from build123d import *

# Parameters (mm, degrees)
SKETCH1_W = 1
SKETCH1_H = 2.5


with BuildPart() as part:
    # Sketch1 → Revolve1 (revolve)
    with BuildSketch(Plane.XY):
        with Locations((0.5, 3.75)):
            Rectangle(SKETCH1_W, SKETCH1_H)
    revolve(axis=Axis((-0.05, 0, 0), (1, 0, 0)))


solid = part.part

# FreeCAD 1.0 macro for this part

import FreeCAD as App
import Part
import Sketcher
from FreeCAD import Vector
Q = App.Units.Quantity

doc = App.newDocument("Part")
body = doc.addObject("PartDesign::Body", "Body")

# Sketch on XY plane
sketch1 = body.newObject("Sketcher::SketchObject", "Sketch")
sketch1.AttachmentSupport = (doc.getObject("XY_Plane"), [""])
sketch1.MapMode = "FlatFace"
sketch1.addGeometry(Part.LineSegment(Vector(0, 5, 0), Vector(0, 2.5, 0)), False)
sketch1.addGeometry(Part.LineSegment(Vector(0, 2.5, 0), Vector(1, 2.5, 0)), False)
sketch1.addGeometry(Part.LineSegment(Vector(1, 2.5, 0), Vector(1, 5, 0)), False)
sketch1.addGeometry(Part.LineSegment(Vector(1, 5, 0), Vector(0, 5, 0)), False)
sketch1.addConstraint(Sketcher.Constraint("Coincident", 0, 2, 1, 1))
sketch1.addConstraint(Sketcher.Constraint("Coincident", 1, 2, 2, 1))
sketch1.addConstraint(Sketcher.Constraint("Coincident", 2, 2, 3, 1))
sketch1.addConstraint(Sketcher.Constraint("Coincident", 3, 2, 0, 1))
sketch1.addConstraint(Sketcher.Constraint("Vertical", 0))
sketch1.addConstraint(Sketcher.Constraint("Horizontal", 1))
sketch1.addConstraint(Sketcher.Constraint("Vertical", 2))
sketch1.addConstraint(Sketcher.Constraint("Horizontal", 3))
sketch1.addConstraint(Sketcher.Constraint("PointOnObject", 0, 2, -2))
sketch1.addConstraint(Sketcher.Constraint("DistanceX", 1, 1, 1, 2, Q("1 mm")))
sketch1.addConstraint(Sketcher.Constraint("DistanceY", 0, 2, 0, 1, Q("2.5 mm")))
sketch1.addConstraint(Sketcher.Constraint("DistanceY", -1, 1, 2, 2, Q("5 mm")))
revolution = body.newObject("PartDesign::Revolution", "Revolution")
revolution.Profile = sketch1
revolution.ReferenceAxis = (sketch1, ["H_Axis"])
revolution.Angle = 360

doc.recompute()
